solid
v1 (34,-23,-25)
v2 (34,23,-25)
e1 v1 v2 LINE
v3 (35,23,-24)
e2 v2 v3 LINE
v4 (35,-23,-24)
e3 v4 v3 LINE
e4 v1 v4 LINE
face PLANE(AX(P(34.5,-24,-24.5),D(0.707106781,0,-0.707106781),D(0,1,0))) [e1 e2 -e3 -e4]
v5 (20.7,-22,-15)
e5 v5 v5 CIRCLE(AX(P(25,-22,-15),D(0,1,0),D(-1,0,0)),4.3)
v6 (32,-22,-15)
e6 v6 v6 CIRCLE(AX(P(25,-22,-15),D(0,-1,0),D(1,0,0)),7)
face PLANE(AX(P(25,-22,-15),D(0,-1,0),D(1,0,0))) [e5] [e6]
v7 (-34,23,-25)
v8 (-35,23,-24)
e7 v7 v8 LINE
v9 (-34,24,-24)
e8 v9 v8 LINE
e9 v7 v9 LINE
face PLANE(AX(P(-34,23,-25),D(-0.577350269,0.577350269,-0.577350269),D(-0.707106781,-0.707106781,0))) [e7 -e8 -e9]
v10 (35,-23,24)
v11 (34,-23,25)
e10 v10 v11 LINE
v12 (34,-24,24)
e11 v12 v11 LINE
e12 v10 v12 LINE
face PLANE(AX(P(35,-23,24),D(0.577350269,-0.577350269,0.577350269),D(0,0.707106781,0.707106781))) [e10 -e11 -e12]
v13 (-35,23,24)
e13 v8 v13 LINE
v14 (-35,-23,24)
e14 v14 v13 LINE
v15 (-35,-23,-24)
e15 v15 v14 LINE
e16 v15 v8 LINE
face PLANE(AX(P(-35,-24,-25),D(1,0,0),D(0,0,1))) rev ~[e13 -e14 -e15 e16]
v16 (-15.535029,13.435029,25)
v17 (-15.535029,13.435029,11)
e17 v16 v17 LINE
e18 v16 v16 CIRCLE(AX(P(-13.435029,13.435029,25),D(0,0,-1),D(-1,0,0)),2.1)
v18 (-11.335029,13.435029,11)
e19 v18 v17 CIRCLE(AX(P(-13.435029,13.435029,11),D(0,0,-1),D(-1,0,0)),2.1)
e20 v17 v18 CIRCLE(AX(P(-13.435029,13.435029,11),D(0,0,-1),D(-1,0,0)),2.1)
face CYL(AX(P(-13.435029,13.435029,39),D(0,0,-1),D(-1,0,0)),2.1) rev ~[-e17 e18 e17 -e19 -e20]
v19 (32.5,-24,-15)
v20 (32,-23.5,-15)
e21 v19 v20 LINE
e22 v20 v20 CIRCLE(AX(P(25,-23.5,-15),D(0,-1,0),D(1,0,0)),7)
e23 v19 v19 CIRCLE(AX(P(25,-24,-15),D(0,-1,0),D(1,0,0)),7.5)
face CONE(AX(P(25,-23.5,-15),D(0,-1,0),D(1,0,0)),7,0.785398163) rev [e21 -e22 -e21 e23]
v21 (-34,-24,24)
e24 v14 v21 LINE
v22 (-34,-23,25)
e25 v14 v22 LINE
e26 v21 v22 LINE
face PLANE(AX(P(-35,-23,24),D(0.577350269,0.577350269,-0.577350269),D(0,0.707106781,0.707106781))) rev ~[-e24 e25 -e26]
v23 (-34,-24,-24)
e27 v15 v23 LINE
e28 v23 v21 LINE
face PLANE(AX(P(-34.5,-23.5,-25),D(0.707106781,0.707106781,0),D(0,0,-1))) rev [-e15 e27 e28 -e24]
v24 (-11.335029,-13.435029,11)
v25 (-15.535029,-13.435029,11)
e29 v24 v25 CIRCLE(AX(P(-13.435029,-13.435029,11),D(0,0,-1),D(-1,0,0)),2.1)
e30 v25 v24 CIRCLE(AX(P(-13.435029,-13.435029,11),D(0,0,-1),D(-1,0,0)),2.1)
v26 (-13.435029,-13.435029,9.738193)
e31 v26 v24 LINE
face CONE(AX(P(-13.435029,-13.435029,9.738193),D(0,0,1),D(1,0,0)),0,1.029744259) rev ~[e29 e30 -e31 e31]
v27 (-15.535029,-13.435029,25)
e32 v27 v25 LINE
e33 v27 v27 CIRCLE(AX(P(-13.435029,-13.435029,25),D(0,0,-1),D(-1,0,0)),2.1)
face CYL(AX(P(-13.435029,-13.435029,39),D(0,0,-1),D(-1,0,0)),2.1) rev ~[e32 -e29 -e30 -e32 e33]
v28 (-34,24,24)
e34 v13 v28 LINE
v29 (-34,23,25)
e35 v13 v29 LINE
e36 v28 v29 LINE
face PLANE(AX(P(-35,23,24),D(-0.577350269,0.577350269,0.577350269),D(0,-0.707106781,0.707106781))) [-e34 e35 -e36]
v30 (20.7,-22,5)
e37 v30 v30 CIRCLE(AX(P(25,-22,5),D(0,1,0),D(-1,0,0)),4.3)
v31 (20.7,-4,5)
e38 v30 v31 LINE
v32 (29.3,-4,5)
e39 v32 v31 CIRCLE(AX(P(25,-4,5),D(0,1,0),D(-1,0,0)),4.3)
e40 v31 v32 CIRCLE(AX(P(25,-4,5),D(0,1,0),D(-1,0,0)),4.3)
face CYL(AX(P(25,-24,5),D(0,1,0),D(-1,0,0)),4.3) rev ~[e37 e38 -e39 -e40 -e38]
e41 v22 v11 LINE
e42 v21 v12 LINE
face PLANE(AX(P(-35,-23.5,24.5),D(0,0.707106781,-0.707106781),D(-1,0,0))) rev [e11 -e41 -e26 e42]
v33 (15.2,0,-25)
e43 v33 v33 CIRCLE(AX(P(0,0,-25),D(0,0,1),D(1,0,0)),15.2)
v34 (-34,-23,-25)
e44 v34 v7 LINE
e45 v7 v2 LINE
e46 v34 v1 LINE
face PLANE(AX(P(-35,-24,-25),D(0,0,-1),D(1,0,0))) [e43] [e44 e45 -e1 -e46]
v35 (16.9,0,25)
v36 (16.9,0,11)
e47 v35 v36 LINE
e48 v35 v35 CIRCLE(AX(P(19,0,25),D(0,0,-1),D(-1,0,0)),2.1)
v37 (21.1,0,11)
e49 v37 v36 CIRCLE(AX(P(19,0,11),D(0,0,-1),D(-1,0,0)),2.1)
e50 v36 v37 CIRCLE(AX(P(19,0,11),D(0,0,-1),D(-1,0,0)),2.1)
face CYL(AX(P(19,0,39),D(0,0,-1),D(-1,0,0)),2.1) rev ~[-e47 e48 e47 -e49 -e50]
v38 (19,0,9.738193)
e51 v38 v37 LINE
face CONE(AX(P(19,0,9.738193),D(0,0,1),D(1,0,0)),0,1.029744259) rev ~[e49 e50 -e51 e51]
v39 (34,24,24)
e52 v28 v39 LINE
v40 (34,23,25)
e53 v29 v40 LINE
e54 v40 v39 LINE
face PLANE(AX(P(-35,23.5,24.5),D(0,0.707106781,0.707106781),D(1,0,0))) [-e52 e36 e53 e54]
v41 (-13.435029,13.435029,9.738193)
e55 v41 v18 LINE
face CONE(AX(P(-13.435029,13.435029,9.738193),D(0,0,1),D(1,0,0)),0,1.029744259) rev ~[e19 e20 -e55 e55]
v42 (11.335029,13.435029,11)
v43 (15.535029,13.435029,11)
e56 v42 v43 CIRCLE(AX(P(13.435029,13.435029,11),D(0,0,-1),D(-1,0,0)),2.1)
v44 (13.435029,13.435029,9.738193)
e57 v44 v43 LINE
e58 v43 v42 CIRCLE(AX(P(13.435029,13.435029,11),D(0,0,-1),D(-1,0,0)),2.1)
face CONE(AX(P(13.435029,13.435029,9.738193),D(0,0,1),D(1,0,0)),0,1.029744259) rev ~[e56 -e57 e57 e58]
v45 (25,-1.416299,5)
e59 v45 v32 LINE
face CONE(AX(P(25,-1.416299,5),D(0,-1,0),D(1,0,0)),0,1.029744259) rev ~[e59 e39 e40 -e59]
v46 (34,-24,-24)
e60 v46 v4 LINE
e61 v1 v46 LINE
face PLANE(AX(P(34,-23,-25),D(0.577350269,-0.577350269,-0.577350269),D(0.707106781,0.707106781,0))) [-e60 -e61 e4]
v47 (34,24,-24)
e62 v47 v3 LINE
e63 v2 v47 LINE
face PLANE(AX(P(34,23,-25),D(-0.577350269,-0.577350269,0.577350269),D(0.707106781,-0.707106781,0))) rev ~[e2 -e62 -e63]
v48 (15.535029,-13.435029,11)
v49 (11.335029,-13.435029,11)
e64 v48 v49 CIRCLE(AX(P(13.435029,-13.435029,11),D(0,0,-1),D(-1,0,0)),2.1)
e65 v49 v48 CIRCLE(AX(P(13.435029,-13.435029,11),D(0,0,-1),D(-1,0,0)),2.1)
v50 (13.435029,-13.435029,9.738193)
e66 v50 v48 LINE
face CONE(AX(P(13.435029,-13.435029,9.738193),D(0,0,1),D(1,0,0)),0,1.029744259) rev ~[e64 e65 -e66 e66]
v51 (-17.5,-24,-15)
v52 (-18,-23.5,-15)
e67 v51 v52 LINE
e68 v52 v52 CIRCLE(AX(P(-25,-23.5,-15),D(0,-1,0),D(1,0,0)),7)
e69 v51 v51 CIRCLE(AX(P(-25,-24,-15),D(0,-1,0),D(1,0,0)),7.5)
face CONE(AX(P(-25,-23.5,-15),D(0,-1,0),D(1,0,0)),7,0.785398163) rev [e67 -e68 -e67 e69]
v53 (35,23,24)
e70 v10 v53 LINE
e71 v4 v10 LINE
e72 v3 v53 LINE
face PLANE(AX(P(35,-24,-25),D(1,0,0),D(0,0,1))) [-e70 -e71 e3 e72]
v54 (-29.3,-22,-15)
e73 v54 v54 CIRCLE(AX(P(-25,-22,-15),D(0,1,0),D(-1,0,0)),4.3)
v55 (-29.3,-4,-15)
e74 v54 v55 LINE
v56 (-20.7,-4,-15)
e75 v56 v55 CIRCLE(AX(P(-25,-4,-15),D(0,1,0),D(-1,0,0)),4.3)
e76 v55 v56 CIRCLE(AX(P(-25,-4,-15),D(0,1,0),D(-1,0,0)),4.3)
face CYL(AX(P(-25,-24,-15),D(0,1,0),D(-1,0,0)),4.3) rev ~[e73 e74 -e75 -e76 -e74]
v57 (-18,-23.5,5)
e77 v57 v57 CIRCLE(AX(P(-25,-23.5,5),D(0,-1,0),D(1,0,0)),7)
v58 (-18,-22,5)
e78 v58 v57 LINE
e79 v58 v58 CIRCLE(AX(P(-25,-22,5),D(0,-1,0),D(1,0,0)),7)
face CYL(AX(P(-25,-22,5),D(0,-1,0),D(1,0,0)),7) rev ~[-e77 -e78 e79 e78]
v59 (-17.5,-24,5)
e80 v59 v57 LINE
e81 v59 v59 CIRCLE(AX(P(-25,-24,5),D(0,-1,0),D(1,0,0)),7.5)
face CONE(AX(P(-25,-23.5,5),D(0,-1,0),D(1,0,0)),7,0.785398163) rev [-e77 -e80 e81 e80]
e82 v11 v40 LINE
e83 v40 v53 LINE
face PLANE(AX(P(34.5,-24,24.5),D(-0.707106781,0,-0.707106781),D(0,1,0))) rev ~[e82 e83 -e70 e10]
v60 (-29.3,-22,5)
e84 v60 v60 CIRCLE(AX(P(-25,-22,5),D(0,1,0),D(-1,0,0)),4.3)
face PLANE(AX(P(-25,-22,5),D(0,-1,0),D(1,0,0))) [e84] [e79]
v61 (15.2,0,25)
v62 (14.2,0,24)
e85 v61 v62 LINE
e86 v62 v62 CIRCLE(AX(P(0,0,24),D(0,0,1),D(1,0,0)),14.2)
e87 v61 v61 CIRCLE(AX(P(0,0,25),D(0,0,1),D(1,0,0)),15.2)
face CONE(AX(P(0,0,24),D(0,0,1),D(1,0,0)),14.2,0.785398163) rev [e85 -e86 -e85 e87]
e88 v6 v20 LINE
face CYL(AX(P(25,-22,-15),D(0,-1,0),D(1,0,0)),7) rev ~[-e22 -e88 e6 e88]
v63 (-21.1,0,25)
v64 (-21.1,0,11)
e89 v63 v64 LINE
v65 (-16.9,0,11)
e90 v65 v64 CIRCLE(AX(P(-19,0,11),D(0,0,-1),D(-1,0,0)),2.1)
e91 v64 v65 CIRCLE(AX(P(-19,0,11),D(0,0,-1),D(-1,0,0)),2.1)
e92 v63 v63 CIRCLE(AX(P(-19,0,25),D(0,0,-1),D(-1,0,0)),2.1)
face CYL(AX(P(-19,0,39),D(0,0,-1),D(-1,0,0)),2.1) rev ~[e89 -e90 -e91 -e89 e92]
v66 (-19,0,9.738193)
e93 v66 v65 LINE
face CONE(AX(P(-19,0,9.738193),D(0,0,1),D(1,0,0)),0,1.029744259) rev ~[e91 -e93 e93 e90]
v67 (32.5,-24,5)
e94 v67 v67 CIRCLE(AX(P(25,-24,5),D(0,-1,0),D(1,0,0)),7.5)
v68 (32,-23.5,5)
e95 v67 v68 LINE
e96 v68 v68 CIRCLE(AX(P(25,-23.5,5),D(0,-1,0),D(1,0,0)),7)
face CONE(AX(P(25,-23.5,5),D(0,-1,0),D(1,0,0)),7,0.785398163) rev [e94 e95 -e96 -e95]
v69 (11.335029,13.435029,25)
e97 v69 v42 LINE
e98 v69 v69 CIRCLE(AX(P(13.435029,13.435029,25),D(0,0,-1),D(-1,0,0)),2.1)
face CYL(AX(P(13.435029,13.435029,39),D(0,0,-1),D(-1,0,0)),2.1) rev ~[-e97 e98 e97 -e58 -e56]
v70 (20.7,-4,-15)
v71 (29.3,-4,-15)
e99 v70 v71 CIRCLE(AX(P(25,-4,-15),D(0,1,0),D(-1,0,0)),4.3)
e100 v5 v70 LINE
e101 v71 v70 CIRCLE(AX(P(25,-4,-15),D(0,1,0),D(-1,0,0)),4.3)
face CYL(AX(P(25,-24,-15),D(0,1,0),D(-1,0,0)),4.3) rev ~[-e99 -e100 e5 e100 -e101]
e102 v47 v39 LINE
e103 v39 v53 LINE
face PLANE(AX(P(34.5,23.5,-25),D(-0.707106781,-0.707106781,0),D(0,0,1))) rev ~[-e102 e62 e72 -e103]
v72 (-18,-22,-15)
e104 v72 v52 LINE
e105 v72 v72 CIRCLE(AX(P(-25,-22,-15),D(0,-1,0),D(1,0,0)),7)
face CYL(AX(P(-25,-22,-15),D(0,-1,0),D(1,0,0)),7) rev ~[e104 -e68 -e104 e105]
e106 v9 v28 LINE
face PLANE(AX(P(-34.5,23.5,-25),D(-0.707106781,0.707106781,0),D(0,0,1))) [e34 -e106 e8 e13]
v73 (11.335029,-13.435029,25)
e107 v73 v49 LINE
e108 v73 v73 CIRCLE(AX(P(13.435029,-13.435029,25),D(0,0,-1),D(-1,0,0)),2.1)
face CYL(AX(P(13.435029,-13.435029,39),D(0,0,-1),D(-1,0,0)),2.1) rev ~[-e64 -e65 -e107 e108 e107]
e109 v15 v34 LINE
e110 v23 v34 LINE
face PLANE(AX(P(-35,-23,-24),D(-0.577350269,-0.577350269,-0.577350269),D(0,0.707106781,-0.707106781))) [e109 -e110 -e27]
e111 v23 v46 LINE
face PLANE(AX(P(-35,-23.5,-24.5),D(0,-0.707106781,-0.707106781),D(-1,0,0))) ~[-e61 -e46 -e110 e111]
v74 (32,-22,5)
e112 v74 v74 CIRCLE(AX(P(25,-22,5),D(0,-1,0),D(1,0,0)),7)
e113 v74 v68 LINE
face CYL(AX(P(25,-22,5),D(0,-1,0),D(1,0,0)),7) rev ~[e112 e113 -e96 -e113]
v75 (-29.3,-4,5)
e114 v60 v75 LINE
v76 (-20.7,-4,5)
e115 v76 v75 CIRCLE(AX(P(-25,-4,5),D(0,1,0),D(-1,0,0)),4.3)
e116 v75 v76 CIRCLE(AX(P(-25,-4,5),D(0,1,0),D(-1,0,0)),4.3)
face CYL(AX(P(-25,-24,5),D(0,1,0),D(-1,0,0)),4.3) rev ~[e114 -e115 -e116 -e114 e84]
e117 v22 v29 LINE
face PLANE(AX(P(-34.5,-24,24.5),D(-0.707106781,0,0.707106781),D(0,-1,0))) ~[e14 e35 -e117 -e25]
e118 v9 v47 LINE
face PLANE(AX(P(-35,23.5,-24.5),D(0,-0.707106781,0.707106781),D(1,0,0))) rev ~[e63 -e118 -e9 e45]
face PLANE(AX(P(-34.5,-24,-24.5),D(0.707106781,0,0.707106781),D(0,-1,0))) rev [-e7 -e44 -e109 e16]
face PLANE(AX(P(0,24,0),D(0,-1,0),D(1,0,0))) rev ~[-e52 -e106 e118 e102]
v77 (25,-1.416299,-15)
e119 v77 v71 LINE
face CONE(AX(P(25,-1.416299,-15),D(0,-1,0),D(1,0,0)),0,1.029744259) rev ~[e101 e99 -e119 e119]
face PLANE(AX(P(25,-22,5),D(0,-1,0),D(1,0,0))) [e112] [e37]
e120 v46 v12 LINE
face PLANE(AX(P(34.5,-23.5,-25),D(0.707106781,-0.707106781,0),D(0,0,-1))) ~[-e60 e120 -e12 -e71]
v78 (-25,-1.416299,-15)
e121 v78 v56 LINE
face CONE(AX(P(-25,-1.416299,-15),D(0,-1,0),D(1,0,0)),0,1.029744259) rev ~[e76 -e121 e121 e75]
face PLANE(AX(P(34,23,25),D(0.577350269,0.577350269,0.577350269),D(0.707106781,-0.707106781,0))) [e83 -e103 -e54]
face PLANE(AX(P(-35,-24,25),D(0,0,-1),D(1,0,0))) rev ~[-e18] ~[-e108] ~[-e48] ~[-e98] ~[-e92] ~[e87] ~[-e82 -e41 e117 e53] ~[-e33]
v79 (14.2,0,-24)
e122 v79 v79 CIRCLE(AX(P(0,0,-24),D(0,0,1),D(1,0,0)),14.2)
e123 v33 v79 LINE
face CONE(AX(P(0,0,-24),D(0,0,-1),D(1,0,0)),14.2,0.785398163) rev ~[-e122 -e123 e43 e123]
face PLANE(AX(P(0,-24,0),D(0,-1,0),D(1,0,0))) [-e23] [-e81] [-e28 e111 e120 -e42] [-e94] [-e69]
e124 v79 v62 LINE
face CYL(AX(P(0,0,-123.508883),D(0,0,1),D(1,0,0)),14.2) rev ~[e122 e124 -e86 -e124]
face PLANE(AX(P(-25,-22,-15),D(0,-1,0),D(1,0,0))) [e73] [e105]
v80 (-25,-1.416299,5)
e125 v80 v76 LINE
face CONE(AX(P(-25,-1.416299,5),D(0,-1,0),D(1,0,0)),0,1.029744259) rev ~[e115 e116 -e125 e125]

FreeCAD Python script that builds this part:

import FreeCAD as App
import Part
import Sketcher
from FreeCAD import Vector


def edges_at(feature, points):
    """Names of the edges that pass closest to the given points."""
    edges = feature.Shape.Edges
    near = lambda p: min(range(len(edges)), key=lambda i: edges[i].distToShape(Part.Vertex(*p))[0])
    return sorted({f"Edge{near(p) + 1}" for p in points})

doc = App.newDocument("Part")
params = doc.addObject("Spreadsheet::Sheet", "Params")
for row, (alias, value) in enumerate([
    ("sketch1_width", "70 mm"),
    ("sketch1_height", "50 mm"),
    ("pad1_length", "48 mm"),
    ("sketch2_diameter", "28.4 mm"),
    ("hole_diameter", "28.4 mm"),
    ("sketch3_diameter", "4.2 mm"),
    ("hole2_diameter", "4.2 mm"),
    ("hole2_depth", "14 mm"),
    ("sketch4_diameter", "8.6 mm"),
    ("hole3_diameter", "8.6 mm"),
    ("hole3_depth", "20 mm"),
    ("hole3_cbore_diameter", "14 mm"),
    ("hole3_cbore_depth", "2 mm"),
    ("chamfer_size", "0.5 mm"),
    ("chamfer2_size", "1 mm"),
], start=1):
    params.set(f"A{row}", alias)
    params.set(f"B{row}", "=" + value)
    params.setAlias(f"B{row}", alias)

body = doc.addObject("PartDesign::Body", "Body")

sketch1 = body.newObject("Sketcher::SketchObject", "Sketch")
sketch1.AttachmentSupport = (doc.getObject("XZ_Plane"), [""])
sketch1.MapMode = "FlatFace"
sketch1.AttachmentOffset = App.Placement(Vector(0, 0, 24), App.Rotation())
sketch1.addGeometry(Part.LineSegment(Vector(-35, 25, 0), Vector(-35, -25, 0)), False)
sketch1.addGeometry(Part.LineSegment(Vector(-35, -25, 0), Vector(35, -25, 0)), False)
sketch1.addGeometry(Part.LineSegment(Vector(35, -25, 0), Vector(35, 25, 0)), False)
sketch1.addGeometry(Part.LineSegment(Vector(35, 25, 0), Vector(-35, 25, 0)), False)
sketch1.addConstraint(Sketcher.Constraint("Coincident", 0, 2, 1, 1))
sketch1.addConstraint(Sketcher.Constraint("Coincident", 1, 2, 2, 1))
sketch1.addConstraint(Sketcher.Constraint("Coincident", 2, 2, 3, 1))
sketch1.addConstraint(Sketcher.Constraint("Coincident", 3, 2, 0, 1))
sketch1.addConstraint(Sketcher.Constraint("Vertical", 0))
sketch1.addConstraint(Sketcher.Constraint("Horizontal", 1))
sketch1.addConstraint(Sketcher.Constraint("Vertical", 2))
sketch1.addConstraint(Sketcher.Constraint("Horizontal", 3))
sketch1.addConstraint(Sketcher.Constraint("Symmetric", 0, 2, 2, 2, -1, 1))
sketch1.addConstraint(Sketcher.Constraint("DistanceX", 1, 1, 1, 2, 70.0))
sketch1.addConstraint(Sketcher.Constraint("DistanceY", 0, 2, 0, 1, 50.0))
sketch1.setExpression("Constraints[9]", "Params.sketch1_width")
sketch1.setExpression("Constraints[10]", "Params.sketch1_height")
pad1 = body.newObject("PartDesign::Pad", "Pad")
pad1.Profile = sketch1
pad1.setExpression("Length", "Params.pad1_length")
pad1.Reversed = True

sketch2 = body.newObject("Sketcher::SketchObject", "Sketch001")
sketch2.AttachmentSupport = (doc.getObject("XY_Plane"), [""])
sketch2.MapMode = "FlatFace"
sketch2.AttachmentOffset = App.Placement(Vector(0, 0, -25), App.Rotation())
sketch2.addGeometry(Part.Circle(Vector(0, 0, 0), Vector(0, 0, 1), 14.2), False)
sketch2.addConstraint(Sketcher.Constraint("Coincident", 0, 3, -1, 1))
sketch2.addConstraint(Sketcher.Constraint("Diameter", 0, 28.4))
sketch2.setExpression("Constraints[1]", "Params.sketch2_diameter")
doc.recompute()
hole = body.newObject("PartDesign::Hole", "Hole")
hole.Profile = sketch2
hole.ThreadType = "None"
hole.setExpression("Diameter", "Params.hole_diameter")
hole.DepthType = "ThroughAll"
hole.Reversed = True

sketch3 = body.newObject("Sketcher::SketchObject", "Sketch002")
sketch3.AttachmentSupport = (doc.getObject("XY_Plane"), [""])
sketch3.MapMode = "FlatFace"
sketch3.AttachmentOffset = App.Placement(Vector(0, 0, 25), App.Rotation())
sketch3.addGeometry(Part.Circle(Vector(13.435029, -13.435029, 0), Vector(0, 0, 1), 2.1), False)
sketch3.addGeometry(Part.Circle(Vector(13.435029, 13.435029, 0), Vector(0, 0, 1), 2.1), False)
sketch3.addGeometry(Part.Circle(Vector(19, 0, 0), Vector(0, 0, 1), 2.1), False)
sketch3.addGeometry(Part.Circle(Vector(-13.435029, 13.435029, 0), Vector(0, 0, 1), 2.1), False)
sketch3.addGeometry(Part.Circle(Vector(-13.435029, -13.435029, 0), Vector(0, 0, 1), 2.1), False)
sketch3.addGeometry(Part.Circle(Vector(-19, 0, 0), Vector(0, 0, 1), 2.1), False)
sketch3.addConstraint(Sketcher.Constraint("Equal", 0, 1))
sketch3.addConstraint(Sketcher.Constraint("Equal", 1, 2))
sketch3.addConstraint(Sketcher.Constraint("Equal", 2, 3))
sketch3.addConstraint(Sketcher.Constraint("Equal", 3, 4))
sketch3.addConstraint(Sketcher.Constraint("Equal", 4, 5))
sketch3.addConstraint(Sketcher.Constraint("Symmetric", 0, 3, 3, 3, -1, 1))
sketch3.addConstraint(Sketcher.Constraint("Symmetric", 1, 3, 4, 3, -1, 1))
sketch3.addConstraint(Sketcher.Constraint("Symmetric", 2, 3, 5, 3, -1, 1))
sketch3.addConstraint(Sketcher.Constraint("Symmetric", 1, 3, 3, 3, -2))
sketch3.addConstraint(Sketcher.Constraint("PointOnObject", 2, 3, -1))
sketch3.addConstraint(Sketcher.Constraint("Diameter", 0, 4.2))
sketch3.addConstraint(Sketcher.Constraint("DistanceX", -1, 1, 2, 3, 19.0))
sketch3.addConstraint(Sketcher.Constraint("DistanceX", -1, 1, 0, 3, 13.435029))
sketch3.addConstraint(Sketcher.Constraint("DistanceY", 0, 3, -1, 1, 13.435029))
sketch3.setExpression("Constraints[10]", "Params.sketch3_diameter")
doc.recompute()
hole2 = body.newObject("PartDesign::Hole", "Hole001")
hole2.Profile = sketch3
hole2.ThreadType = "None"
hole2.setExpression("Diameter", "Params.hole2_diameter")
hole2.DepthType = "Dimension"
hole2.setExpression("Depth", "Params.hole2_depth")
hole2.DrillPoint = "Angled"
hole2.DrillPointAngle = 118

sketch4 = body.newObject("Sketcher::SketchObject", "Sketch003")
sketch4.AttachmentSupport = (doc.getObject("XZ_Plane"), [""])
sketch4.MapMode = "FlatFace"
sketch4.AttachmentOffset = App.Placement(Vector(0, 0, 24), App.Rotation())
sketch4.addGeometry(Part.Circle(Vector(25, 5, 0), Vector(0, 0, 1), 4.3), False)
sketch4.addGeometry(Part.Circle(Vector(25, -15, 0), Vector(0, 0, 1), 4.3), False)
sketch4.addGeometry(Part.Circle(Vector(-25, 5, 0), Vector(0, 0, 1), 4.3), False)
sketch4.addGeometry(Part.Circle(Vector(-25, -15, 0), Vector(0, 0, 1), 4.3), False)
sketch4.addConstraint(Sketcher.Constraint("Equal", 0, 1))
sketch4.addConstraint(Sketcher.Constraint("Equal", 1, 2))
sketch4.addConstraint(Sketcher.Constraint("Equal", 2, 3))
sketch4.addConstraint(Sketcher.Constraint("Symmetric", 0, 3, 2, 3, -2))
sketch4.addConstraint(Sketcher.Constraint("Symmetric", 1, 3, 3, 3, -2))
sketch4.addConstraint(Sketcher.Constraint("Vertical", 0, 3, 1, 3))
sketch4.addConstraint(Sketcher.Constraint("Diameter", 0, 8.6))
sketch4.addConstraint(Sketcher.Constraint("DistanceX", -1, 1, 0, 3, 25.0))
sketch4.addConstraint(Sketcher.Constraint("DistanceY", -1, 1, 0, 3, 5.0))
sketch4.addConstraint(Sketcher.Constraint("DistanceY", 1, 3, -1, 1, 15.0))
sketch4.setExpression("Constraints[6]", "Params.sketch4_diameter")
doc.recompute()
hole3 = body.newObject("PartDesign::Hole", "Hole002")
hole3.Profile = sketch4
hole3.ThreadType = "None"
hole3.setExpression("Diameter", "Params.hole3_diameter")
hole3.DepthType = "Dimension"
hole3.setExpression("Depth", "Params.hole3_depth")
hole3.DrillPoint = "Angled"
hole3.DrillPointAngle = 118
hole3.HoleCutType = "Counterbore"
hole3.setExpression("HoleCutDiameter", "Params.hole3_cbore_diameter")
hole3.setExpression("HoleCutDepth", "Params.hole3_cbore_depth")
doc.recompute()

chamfer = body.newObject("PartDesign::Chamfer", "Chamfer")
chamfer.Base = (hole3, edges_at(hole3, [
    (-32, -24, -15),
    (-32, -24, 5),
    (18, -24, -15),
    (18, -24, 5),
]))
chamfer.setExpression("Size", "Params.chamfer_size")
doc.recompute()

chamfer2 = body.newObject("PartDesign::Chamfer", "Chamfer001")
chamfer2.Base = (chamfer, edges_at(chamfer, [
    (35, 24, 0),
    (0, 24, 25),
    (-14.2, 0, -25),
    (-14.2, 0, 25),
    (-35, 24, 0),
    (0, -24, 25),
    (35, -24, 0),
    (0, -24, -25),
    (-35, -24, 0),
    (0, 24, -25),
    (-35, 0, 25),
    (35, 0, 25),
    (35, 0, -25),
    (-35, 0, -25),
]))
chamfer2.setExpression("Size", "Params.chamfer2_size")

doc.recompute()
